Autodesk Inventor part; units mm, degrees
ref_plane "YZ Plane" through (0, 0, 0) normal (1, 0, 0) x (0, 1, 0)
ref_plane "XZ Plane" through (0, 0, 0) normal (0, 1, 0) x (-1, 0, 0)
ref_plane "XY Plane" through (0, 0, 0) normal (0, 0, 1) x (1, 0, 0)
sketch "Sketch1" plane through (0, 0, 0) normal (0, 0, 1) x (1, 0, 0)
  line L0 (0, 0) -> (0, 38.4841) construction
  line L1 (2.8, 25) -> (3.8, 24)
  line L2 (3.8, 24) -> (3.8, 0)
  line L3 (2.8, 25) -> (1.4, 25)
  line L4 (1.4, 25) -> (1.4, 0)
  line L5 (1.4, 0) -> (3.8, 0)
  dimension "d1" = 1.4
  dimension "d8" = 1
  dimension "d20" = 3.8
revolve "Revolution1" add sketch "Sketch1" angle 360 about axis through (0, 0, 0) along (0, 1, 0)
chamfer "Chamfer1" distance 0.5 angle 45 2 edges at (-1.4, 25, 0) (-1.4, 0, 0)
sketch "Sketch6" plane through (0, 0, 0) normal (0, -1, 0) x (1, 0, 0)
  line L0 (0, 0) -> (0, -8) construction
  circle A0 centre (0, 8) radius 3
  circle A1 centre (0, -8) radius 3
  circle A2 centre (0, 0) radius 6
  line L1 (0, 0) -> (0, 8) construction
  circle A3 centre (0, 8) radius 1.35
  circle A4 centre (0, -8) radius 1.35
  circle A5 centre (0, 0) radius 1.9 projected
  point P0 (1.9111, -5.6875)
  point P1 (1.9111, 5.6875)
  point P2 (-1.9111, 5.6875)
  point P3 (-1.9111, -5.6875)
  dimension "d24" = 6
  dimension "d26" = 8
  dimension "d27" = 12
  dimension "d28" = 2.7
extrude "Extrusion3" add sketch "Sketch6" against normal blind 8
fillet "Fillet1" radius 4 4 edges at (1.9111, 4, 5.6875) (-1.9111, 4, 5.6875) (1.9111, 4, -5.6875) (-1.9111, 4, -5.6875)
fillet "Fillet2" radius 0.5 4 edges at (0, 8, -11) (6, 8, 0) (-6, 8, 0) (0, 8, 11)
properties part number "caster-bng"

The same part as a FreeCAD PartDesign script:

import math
import FreeCAD as App
import Part
import Sketcher
from FreeCAD import Vector


def edges_at(feature, points):
    """Names of the edges that pass closest to the given points."""
    edges = feature.Shape.Edges
    near = lambda p: min(range(len(edges)), key=lambda i: edges[i].distToShape(Part.Vertex(*p))[0])
    return sorted({f"Edge{near(p) + 1}" for p in points})


def add_polygon(sketch, points):
    """Adds a closed chain of lines whose ends are joined by coincident constraints."""
    first, n = sketch.GeometryCount, len(points)
    for a, b in zip(points, points[1:] + points[:1]):
        sketch.addGeometry(Part.LineSegment(App.Vector(*a, 0), App.Vector(*b, 0)), False)
    for i in range(n):
        sketch.addConstraint(Sketcher.Constraint("Coincident", first + i, 2, first + (i + 1) % n, 1))

doc = App.newDocument("Part")
body = doc.addObject("PartDesign::Body", "Body")

# Sketch on XY plane
sketch1 = body.newObject("Sketcher::SketchObject", "Sketch")
sketch1.AttachmentSupport = (doc.getObject("XY_Plane"), [""])
sketch1.MapMode = "FlatFace"
add_polygon(sketch1, [(3.8, 24), (2.8, 25), (1.4, 25), (1.4, 0), (3.8, 0)])  # lines 0-4
sketch1.addConstraint([
    Sketcher.Constraint("Horizontal", 1),
    Sketcher.Constraint("Vertical", 2),
    Sketcher.Constraint("Horizontal", 3),
    Sketcher.Constraint("Vertical", 4),
    Sketcher.Constraint("PointOnObject", 2, 2, -1),
    Sketcher.Constraint("DistanceX", 1, 2, 1, 1, 1.4),
    Sketcher.Constraint("DistanceX", 0, 2, 3, 2, 1.0),
    Sketcher.Constraint("DistanceY", 4, 2, 0, 2, 1.0),
    Sketcher.Constraint("DistanceX", -1, 1, 1, 2, 1.4),
    Sketcher.Constraint("DistanceY", 2, 2, 2, 1, 25.0),
])
revolution = body.newObject("PartDesign::Revolution", "Revolution")
revolution.Profile = sketch1
revolution.ReferenceAxis = (sketch1, ["V_Axis"])
revolution.Angle = 360
doc.recompute()

chamfer = body.newObject("PartDesign::Chamfer", "Chamfer")
chamfer.Base = (revolution, edges_at(revolution, [(-1.4, 25, 0), (-1.4, 0, 0)]))
chamfer.Size = 0.5

# Sketch on XZ plane
sketch2 = body.newObject("Sketcher::SketchObject", "Sketch001")
sketch2.AttachmentSupport = (doc.getObject("XZ_Plane"), [""])
sketch2.MapMode = "FlatFace"
sketch2.addGeometry([
    Part.ArcOfCircle(Part.Circle(Vector(0, 8, 0), Vector(0, 0, 1), 3), math.radians(-50), math.radians(230)),  # 0
    Part.ArcOfCircle(Part.Circle(Vector(0, 0, 0), Vector(0, 0, 1), 6), math.radians(109), math.radians(251)),  # 1
    Part.ArcOfCircle(Part.Circle(Vector(0, -8, 0), Vector(0, 0, 1), 3), math.radians(130), math.radians(410)),  # 2
    Part.ArcOfCircle(Part.Circle(Vector(0, 0, 0), Vector(0, 0, 1), 6), math.radians(-71), math.radians(71)),  # 3
    Part.Circle(Vector(0, 8, 0), Vector(0, 0, 1), 1.4),  # 4
    Part.Circle(Vector(0, 0, 0), Vector(0, 0, 1), 1.9),  # 5
    Part.Circle(Vector(0, -8, 0), Vector(0, 0, 1), 1.4),  # 6
], False)
sketch2.addConstraint([
    Sketcher.Constraint("Coincident", 0, 2, 1, 1),
    Sketcher.Constraint("Coincident", 1, 2, 2, 1),
    Sketcher.Constraint("Coincident", 2, 2, 3, 1),
    Sketcher.Constraint("Coincident", 3, 2, 0, 1),
    Sketcher.Constraint("Coincident", 1, 3, -1, 1),
    Sketcher.Constraint("Coincident", 3, 3, -1, 1),
    Sketcher.Constraint("Coincident", 5, 3, -1, 1),
    Sketcher.Constraint("Coincident", 4, 3, 0, 3),
    Sketcher.Constraint("Coincident", 6, 3, 2, 3),
    Sketcher.Constraint("Equal", 0, 2),
    Sketcher.Constraint("Equal", 1, 3),
    Sketcher.Constraint("Equal", 4, 6),
    Sketcher.Constraint("Symmetric", 0, 3, 2, 3, -1, 1),
    Sketcher.Constraint("PointOnObject", 0, 3, -2),
    Sketcher.Constraint("Radius", 0, 3.0),
    Sketcher.Constraint("Radius", 1, 6.0),
    Sketcher.Constraint("Diameter", 4, 2.7),
    Sketcher.Constraint("DistanceY", -1, 1, 0, 3, 8.0),
    Sketcher.Constraint("Diameter", 5, 3.8),
])
pad1 = body.newObject("PartDesign::Pad", "Pad")
pad1.Profile = sketch2
pad1.Length = 8
pad1.Reversed = True
doc.recompute()

fillet = body.newObject("PartDesign::Fillet", "Fillet")
fillet.Base = (pad1, edges_at(pad1, [
    (1.911, 4, 5.688),
    (-1.911, 4, 5.688),
    (1.911, 4, -5.688),
    (-1.911, 4, -5.688),
]))
fillet.Radius = 4
doc.recompute()

fillet2 = body.newObject("PartDesign::Fillet", "Fillet001")
fillet2.Base = (fillet, edges_at(fillet, [
    (0, 8, -11),
    (6, 8, 0),
    (-6, 8, 0),
    (0, 8, 11),
]))
fillet2.Radius = 0.5

doc.recompute()
